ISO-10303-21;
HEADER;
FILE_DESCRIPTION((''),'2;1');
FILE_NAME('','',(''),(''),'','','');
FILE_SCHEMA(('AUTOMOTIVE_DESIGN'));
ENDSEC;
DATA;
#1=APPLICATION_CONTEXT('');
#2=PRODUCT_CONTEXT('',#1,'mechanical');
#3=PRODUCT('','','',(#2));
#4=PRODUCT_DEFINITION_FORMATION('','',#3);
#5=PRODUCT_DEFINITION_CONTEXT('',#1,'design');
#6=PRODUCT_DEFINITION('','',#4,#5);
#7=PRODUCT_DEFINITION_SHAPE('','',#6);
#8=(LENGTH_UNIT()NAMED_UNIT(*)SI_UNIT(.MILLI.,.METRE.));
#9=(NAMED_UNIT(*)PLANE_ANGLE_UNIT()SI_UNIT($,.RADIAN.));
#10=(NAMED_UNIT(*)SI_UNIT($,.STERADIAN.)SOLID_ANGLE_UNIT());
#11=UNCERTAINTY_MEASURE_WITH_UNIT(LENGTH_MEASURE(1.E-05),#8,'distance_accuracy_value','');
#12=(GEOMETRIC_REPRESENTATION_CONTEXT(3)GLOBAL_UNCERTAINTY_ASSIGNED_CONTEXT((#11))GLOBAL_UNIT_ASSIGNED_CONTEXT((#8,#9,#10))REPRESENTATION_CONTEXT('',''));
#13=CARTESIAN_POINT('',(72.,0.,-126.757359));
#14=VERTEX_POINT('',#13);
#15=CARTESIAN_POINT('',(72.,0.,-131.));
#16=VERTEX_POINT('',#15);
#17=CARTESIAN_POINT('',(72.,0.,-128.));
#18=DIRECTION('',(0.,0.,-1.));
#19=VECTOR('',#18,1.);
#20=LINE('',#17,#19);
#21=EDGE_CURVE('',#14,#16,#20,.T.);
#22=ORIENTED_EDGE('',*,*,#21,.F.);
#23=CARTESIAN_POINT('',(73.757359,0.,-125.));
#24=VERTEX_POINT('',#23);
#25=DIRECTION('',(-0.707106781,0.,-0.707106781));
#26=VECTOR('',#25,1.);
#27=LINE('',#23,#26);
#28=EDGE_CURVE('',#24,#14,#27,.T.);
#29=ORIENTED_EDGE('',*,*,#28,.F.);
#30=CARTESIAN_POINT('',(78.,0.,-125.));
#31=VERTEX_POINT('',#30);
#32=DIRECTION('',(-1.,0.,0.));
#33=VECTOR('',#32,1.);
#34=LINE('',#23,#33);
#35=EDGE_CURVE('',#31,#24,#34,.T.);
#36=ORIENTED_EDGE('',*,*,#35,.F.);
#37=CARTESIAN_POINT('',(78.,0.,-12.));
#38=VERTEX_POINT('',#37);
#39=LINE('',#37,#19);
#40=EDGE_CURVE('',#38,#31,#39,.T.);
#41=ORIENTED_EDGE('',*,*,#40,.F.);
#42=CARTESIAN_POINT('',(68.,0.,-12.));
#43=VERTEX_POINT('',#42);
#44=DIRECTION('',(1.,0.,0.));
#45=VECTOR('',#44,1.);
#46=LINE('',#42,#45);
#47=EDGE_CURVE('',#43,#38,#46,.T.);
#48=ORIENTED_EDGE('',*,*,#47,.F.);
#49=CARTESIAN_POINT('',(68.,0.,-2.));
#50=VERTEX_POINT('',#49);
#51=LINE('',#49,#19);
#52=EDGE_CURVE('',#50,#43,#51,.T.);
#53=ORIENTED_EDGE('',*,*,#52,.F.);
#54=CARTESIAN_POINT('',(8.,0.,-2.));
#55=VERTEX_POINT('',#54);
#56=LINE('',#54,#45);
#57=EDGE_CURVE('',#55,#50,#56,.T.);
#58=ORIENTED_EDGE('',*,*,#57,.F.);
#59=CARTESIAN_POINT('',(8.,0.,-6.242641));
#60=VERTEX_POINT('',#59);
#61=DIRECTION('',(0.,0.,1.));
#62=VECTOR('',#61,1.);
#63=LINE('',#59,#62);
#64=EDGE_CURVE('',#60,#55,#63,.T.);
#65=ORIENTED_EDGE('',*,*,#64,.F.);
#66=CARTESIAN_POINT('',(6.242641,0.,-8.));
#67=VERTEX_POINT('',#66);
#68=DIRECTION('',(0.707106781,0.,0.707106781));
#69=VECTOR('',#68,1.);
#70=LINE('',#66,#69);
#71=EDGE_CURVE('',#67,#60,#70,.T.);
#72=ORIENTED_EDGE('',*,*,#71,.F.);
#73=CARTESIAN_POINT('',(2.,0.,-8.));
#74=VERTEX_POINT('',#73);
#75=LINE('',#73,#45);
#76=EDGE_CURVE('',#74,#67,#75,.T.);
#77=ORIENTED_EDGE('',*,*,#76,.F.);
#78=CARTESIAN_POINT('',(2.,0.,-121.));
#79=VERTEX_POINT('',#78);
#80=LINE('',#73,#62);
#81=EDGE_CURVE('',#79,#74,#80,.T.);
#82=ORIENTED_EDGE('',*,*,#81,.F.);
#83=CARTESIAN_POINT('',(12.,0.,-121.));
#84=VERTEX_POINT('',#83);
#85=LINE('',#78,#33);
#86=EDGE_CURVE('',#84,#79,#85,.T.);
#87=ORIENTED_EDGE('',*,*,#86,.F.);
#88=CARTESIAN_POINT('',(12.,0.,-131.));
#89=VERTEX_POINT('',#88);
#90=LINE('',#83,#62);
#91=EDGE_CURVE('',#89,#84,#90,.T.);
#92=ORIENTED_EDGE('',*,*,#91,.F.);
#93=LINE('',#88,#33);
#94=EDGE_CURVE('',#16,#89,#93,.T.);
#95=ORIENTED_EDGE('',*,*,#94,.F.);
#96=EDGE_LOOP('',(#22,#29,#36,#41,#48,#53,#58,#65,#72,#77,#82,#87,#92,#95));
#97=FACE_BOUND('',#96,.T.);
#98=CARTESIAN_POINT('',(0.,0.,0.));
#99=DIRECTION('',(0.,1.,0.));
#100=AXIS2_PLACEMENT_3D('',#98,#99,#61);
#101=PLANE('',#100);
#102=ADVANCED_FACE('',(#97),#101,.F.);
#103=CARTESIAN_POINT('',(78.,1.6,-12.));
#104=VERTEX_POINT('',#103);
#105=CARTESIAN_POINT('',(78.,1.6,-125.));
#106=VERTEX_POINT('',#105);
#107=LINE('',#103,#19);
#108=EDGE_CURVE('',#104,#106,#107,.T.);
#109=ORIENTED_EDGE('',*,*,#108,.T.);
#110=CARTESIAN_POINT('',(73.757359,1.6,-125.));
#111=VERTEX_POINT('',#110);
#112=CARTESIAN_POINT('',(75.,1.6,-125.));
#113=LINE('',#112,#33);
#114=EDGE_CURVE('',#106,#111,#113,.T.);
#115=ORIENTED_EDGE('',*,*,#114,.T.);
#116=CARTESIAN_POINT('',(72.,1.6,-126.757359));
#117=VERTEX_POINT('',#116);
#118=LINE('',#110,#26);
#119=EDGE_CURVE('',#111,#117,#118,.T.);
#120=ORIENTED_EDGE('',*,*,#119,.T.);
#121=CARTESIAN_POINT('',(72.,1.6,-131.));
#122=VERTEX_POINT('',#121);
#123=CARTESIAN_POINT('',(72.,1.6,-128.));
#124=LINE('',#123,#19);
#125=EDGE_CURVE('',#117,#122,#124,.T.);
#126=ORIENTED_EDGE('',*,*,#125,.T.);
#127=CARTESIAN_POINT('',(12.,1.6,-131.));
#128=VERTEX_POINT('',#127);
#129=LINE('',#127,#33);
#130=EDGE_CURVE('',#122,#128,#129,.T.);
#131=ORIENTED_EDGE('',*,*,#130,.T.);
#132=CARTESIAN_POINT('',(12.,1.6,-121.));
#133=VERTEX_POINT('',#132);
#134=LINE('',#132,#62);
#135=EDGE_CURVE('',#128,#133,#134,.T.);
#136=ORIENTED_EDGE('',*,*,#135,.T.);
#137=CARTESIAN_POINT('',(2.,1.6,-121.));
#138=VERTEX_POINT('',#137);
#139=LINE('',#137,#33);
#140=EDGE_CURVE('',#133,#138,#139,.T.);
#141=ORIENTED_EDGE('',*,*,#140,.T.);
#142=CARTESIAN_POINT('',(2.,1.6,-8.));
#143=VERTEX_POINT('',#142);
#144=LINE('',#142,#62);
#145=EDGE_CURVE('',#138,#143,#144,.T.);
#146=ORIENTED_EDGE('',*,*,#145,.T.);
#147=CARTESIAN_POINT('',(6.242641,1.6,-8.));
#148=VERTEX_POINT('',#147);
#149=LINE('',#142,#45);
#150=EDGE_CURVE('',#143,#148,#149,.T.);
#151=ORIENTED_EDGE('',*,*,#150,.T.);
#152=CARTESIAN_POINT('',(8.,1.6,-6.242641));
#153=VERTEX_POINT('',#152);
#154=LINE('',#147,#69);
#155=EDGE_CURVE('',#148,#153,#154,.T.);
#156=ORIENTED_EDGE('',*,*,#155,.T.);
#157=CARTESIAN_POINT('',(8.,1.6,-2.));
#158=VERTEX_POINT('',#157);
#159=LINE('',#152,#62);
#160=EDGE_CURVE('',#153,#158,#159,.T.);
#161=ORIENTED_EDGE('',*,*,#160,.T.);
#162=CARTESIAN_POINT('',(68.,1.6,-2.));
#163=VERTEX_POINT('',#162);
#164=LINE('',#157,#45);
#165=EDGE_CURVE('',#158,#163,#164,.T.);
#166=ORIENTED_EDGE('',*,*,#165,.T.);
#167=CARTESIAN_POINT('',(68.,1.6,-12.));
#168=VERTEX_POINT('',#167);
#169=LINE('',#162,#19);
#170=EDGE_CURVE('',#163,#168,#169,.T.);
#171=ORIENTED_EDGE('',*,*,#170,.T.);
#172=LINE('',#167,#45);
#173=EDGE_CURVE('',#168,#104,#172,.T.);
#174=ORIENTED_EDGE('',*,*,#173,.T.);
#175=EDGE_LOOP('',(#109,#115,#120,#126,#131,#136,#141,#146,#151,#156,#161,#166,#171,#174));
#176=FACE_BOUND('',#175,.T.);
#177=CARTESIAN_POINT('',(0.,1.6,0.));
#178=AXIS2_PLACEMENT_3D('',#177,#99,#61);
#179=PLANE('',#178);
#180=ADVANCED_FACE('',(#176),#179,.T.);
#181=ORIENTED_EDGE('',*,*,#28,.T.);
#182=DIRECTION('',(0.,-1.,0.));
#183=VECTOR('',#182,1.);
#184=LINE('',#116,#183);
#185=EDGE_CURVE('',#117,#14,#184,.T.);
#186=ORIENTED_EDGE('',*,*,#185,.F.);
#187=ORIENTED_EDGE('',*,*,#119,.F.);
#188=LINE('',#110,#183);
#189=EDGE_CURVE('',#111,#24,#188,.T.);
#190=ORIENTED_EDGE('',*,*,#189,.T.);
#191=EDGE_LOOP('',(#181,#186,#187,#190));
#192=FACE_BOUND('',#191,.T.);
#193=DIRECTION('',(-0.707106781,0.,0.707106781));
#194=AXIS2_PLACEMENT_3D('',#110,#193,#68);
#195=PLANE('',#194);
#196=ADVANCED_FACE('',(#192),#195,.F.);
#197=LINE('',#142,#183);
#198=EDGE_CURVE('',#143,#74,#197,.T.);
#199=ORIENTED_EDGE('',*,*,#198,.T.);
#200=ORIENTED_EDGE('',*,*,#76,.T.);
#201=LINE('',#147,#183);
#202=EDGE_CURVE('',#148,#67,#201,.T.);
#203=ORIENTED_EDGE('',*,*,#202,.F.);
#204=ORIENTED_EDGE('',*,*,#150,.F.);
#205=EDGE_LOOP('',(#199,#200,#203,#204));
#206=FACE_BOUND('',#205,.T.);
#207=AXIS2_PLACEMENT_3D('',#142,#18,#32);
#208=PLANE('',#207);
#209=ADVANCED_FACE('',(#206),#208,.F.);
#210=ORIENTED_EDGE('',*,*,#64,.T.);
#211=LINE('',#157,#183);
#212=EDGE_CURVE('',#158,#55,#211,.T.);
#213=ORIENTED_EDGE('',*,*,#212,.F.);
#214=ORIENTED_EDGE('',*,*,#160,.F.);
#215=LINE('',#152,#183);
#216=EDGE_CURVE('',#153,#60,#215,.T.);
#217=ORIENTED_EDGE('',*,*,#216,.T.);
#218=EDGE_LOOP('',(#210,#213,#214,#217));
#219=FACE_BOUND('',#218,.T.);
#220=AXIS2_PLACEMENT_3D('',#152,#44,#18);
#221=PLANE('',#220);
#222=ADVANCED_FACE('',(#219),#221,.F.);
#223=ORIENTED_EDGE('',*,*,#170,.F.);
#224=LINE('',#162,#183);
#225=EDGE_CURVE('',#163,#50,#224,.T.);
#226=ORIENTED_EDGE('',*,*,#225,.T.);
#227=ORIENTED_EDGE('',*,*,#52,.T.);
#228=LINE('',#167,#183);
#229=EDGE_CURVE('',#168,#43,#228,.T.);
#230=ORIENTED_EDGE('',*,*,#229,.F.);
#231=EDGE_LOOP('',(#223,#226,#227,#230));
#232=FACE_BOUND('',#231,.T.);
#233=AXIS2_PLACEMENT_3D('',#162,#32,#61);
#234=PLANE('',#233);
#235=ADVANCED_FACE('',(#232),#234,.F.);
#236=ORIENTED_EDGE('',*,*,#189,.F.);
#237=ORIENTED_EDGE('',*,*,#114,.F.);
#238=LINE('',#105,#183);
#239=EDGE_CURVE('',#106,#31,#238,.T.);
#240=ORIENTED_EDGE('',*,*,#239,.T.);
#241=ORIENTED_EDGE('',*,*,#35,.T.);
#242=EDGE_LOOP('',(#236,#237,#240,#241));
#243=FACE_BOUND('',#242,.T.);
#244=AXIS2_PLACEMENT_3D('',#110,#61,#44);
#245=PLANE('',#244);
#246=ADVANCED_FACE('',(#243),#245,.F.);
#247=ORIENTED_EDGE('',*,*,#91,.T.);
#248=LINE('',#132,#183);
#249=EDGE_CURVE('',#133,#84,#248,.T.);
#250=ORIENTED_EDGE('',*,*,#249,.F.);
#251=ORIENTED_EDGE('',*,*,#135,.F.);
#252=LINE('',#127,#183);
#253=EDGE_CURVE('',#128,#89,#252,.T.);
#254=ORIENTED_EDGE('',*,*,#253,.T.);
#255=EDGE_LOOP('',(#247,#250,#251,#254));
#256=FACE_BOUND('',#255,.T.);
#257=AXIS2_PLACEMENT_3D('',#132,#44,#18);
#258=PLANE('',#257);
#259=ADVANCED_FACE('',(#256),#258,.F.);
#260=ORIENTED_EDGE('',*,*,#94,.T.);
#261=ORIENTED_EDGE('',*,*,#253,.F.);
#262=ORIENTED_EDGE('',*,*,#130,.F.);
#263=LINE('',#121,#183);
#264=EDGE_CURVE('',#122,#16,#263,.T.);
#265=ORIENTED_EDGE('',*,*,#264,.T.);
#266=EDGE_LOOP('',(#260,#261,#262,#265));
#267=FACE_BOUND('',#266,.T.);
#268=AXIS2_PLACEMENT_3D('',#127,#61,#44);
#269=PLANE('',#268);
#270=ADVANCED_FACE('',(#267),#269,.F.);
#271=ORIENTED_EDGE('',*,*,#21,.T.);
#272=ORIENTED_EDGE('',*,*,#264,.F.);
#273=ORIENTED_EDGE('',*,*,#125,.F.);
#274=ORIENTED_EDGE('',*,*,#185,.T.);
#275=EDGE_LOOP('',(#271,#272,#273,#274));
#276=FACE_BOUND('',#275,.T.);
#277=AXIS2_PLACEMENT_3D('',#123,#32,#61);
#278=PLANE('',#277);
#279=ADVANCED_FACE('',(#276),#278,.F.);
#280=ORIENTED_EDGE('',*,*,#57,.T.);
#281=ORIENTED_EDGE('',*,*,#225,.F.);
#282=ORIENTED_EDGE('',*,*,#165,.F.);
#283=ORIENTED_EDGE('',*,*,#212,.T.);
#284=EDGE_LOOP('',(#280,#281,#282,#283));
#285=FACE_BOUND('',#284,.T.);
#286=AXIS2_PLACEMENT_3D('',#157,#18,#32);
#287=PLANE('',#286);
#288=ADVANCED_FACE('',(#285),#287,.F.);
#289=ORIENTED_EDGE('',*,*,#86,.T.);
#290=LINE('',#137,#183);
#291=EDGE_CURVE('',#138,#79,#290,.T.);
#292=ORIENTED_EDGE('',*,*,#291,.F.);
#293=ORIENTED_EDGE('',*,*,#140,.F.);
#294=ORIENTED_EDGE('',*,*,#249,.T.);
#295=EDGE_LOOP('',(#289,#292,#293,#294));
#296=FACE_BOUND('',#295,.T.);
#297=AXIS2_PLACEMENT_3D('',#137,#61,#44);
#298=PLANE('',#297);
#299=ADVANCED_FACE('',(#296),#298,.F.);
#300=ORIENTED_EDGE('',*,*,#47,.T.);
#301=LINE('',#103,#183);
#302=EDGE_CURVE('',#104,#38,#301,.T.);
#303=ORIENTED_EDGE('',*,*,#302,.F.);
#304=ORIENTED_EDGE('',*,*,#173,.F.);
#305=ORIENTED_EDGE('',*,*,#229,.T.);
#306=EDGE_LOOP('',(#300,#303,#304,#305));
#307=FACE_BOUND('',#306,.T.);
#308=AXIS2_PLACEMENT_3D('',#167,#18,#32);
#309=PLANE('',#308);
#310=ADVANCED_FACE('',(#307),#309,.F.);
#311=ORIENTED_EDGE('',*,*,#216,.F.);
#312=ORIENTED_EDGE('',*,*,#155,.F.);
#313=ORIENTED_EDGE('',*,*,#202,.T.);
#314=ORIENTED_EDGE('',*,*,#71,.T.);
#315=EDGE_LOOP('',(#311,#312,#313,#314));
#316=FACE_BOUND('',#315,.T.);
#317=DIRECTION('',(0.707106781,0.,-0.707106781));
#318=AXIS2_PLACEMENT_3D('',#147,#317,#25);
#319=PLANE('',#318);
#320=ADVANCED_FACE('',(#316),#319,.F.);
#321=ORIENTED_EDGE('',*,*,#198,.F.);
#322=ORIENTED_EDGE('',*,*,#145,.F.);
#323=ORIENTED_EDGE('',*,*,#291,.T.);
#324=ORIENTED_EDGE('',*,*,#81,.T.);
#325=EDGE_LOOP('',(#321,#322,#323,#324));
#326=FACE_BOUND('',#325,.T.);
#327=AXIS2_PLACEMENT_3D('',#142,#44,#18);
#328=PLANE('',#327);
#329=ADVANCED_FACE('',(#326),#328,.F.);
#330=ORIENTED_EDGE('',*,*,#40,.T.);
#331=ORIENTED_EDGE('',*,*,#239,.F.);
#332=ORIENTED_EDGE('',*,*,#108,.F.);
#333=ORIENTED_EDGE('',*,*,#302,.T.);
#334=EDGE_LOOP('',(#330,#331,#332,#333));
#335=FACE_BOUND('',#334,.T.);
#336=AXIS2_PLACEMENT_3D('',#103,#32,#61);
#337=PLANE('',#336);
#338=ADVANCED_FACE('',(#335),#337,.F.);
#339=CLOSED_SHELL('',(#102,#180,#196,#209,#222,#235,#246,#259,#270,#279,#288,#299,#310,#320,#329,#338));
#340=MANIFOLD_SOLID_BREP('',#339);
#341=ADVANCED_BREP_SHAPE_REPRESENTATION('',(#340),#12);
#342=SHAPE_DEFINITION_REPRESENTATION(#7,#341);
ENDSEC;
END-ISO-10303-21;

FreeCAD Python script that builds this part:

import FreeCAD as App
import Part
import Sketcher
from FreeCAD import Vector
Q = App.Units.Quantity

doc = App.newDocument("Part")
body = doc.addObject("PartDesign::Body", "Body")

sketch1 = doc.addObject("Sketcher::SketchObject", "Sketch")
body.addObject(sketch1)
sketch1.AttachmentSupport = (doc.XZ_Plane, [""])
sketch1.MapMode = "FlatFace"
sketch1.addGeometry([
    Part.LineSegment(Vector(8, -2, 0), Vector(68, -2, 0)),
    Part.LineSegment(Vector(68, -2, 0), Vector(68, -12, 0)),
    Part.LineSegment(Vector(68, -12, 0), Vector(78, -12, 0)),
    Part.LineSegment(Vector(78, -12, 0), Vector(78, -125, 0)),
    Part.LineSegment(Vector(78, -125, 0), Vector(73.8, -125, 0)),
    Part.LineSegment(Vector(73.8, -125, 0), Vector(72, -126.8, 0)),
    Part.LineSegment(Vector(72, -126.8, 0), Vector(72, -131, 0)),
    Part.LineSegment(Vector(72, -131, 0), Vector(12, -131, 0)),
    Part.LineSegment(Vector(12, -131, 0), Vector(12, -121, 0)),
    Part.LineSegment(Vector(12, -121, 0), Vector(2, -121, 0)),
    Part.LineSegment(Vector(2, -121, 0), Vector(2, -8, 0)),
    Part.LineSegment(Vector(2, -8, 0), Vector(6.2, -8, 0)),
    Part.LineSegment(Vector(6.2, -8, 0), Vector(8, -6.2, 0)),
    Part.LineSegment(Vector(8, -6.2, 0), Vector(8, -2, 0)),
], False)
sketch1.addConstraint([
    Sketcher.Constraint("Coincident", 0, 2, 1, 1),
    Sketcher.Constraint("Coincident", 1, 2, 2, 1),
    Sketcher.Constraint("Coincident", 2, 2, 3, 1),
    Sketcher.Constraint("Coincident", 3, 2, 4, 1),
    Sketcher.Constraint("Coincident", 4, 2, 5, 1),
    Sketcher.Constraint("Coincident", 5, 2, 6, 1),
    Sketcher.Constraint("Coincident", 6, 2, 7, 1),
    Sketcher.Constraint("Coincident", 7, 2, 8, 1),
    Sketcher.Constraint("Coincident", 8, 2, 9, 1),
    Sketcher.Constraint("Coincident", 9, 2, 10, 1),
    Sketcher.Constraint("Coincident", 10, 2, 11, 1),
    Sketcher.Constraint("Coincident", 11, 2, 12, 1),
    Sketcher.Constraint("Coincident", 12, 2, 13, 1),
    Sketcher.Constraint("Coincident", 13, 2, 0, 1),
    Sketcher.Constraint("Horizontal", 0),
    Sketcher.Constraint("Vertical", 1),
    Sketcher.Constraint("Horizontal", 2),
    Sketcher.Constraint("Vertical", 3),
    Sketcher.Constraint("Horizontal", 4),
    Sketcher.Constraint("Vertical", 6),
    Sketcher.Constraint("Horizontal", 7),
    Sketcher.Constraint("Vertical", 8),
    Sketcher.Constraint("Horizontal", 9),
    Sketcher.Constraint("Vertical", 10),
    Sketcher.Constraint("Horizontal", 11),
    Sketcher.Constraint("Vertical", 13),
    Sketcher.Constraint("Parallel", 5, 12),
    Sketcher.Constraint("Equal", 0, 7),
    Sketcher.Constraint("Equal", 2, 9),
    Sketcher.Constraint("Equal", 4, 11),
    Sketcher.Constraint("Equal", 9, 1),
    Sketcher.Constraint("Equal", 11, 6),
    Sketcher.Constraint("Equal", 1, 8),
    Sketcher.Constraint("Equal", 3, 10),
    Sketcher.Constraint("DistanceX", 0, 1, 0, 2, 60.0),
    Sketcher.Constraint("DistanceX", 2, 1, 2, 2, 10.0),
    Sketcher.Constraint("DistanceY", 3, 2, 3, 1, 113.0),
    Sketcher.Constraint("Angle", 5, Q("-135 deg")),
    Sketcher.Constraint("DistanceX", -1, 1, 0, 2, 68.0),
    Sketcher.Constraint("DistanceY", 0, 2, -1, 1, 2.0),
    Sketcher.Constraint("DistanceX", -1, 1, 5, 2, 72.0),
    Sketcher.Constraint("DistanceX", 4, 2, 4, 1, 4.242641),
])
pad1 = doc.addObject("PartDesign::Pad", "Pad")
body.addObject(pad1)
pad1.Profile = sketch1
pad1.Length = 1.6
pad1.Reversed = True

doc.recompute()
